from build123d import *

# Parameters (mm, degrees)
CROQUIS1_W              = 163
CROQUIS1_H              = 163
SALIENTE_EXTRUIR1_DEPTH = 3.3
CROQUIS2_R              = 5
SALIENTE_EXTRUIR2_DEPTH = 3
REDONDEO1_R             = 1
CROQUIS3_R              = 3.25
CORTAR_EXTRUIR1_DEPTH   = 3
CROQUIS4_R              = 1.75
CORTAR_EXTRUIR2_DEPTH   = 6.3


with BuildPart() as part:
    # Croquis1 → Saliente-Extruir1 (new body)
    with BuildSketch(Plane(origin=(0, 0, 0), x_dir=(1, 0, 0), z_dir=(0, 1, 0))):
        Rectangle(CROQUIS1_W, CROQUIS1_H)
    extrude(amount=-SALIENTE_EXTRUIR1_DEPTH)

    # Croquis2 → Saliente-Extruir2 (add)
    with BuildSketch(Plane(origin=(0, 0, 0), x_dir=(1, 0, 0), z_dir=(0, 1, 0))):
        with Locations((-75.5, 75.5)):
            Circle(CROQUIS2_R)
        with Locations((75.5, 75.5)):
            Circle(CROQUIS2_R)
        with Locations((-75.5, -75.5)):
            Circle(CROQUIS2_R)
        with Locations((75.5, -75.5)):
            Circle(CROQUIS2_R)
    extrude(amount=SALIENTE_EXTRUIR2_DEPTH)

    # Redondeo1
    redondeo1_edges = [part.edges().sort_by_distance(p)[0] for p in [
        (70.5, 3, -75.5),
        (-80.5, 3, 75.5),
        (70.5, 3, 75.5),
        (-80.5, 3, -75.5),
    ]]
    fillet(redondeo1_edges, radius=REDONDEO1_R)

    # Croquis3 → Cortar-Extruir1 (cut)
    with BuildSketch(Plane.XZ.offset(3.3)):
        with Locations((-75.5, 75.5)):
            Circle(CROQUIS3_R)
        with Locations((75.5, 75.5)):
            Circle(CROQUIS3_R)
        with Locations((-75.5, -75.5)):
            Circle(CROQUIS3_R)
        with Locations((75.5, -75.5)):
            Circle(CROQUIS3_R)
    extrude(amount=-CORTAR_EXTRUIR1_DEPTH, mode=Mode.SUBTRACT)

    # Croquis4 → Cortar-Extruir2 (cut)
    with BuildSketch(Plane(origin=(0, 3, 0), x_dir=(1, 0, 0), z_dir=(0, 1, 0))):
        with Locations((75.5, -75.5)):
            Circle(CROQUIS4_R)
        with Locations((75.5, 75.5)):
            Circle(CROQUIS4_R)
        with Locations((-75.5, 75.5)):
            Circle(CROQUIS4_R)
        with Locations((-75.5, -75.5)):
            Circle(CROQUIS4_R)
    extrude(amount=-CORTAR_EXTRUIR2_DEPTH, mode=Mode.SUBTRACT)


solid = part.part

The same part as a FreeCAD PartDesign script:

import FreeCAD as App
import Part
import Sketcher


def edges_at(feature, points):
    """Names of the edges that pass closest to the given points."""
    edges = feature.Shape.Edges
    near = lambda p: min(range(len(edges)), key=lambda i: edges[i].distToShape(Part.Vertex(*p))[0])
    return sorted({f"Edge{near(p) + 1}" for p in points})


def add_polygon(sketch, points):
    """Adds a closed chain of lines whose ends are joined by coincident constraints."""
    first, n = sketch.GeometryCount, len(points)
    for a, b in zip(points, points[1:] + points[:1]):
        sketch.addGeometry(Part.LineSegment(App.Vector(*a, 0), App.Vector(*b, 0)), False)
    for i in range(n):
        sketch.addConstraint(Sketcher.Constraint("Coincident", first + i, 2, first + (i + 1) % n, 1))

doc = App.newDocument("Part")
body = doc.addObject("PartDesign::Body", "Body")

sketch1 = doc.addObject("Sketcher::SketchObject", "Sketch")
body.addObject(sketch1)
sketch1.AttachmentSupport = (doc.XZ_Plane, [""])
sketch1.MapMode = "FlatFace"
add_polygon(sketch1, [(-82, -82), (-82, 82), (82, 82), (82, -82)])
sketch1.addConstraint([
    Sketcher.Constraint("Vertical", 0),
    Sketcher.Constraint("Horizontal", 1),
    Sketcher.Constraint("Vertical", 2),
    Sketcher.Constraint("Horizontal", 3),
    Sketcher.Constraint("Symmetric", 0, 2, 2, 2, -1, 1),
    Sketcher.Constraint("Equal", 3, 0),
    Sketcher.Constraint("DistanceX", 1, 1, 1, 2, 163.0),
])
pad1 = doc.addObject("PartDesign::Pad", "Pad")
body.addObject(pad1)
pad1.Profile = sketch1
pad1.Length = 3.3

sketch2 = doc.addObject("Sketcher::SketchObject", "Sketch001")
body.addObject(sketch2)
sketch2.AttachmentSupport = (doc.XZ_Plane, [""])
sketch2.MapMode = "FlatFace"
sketch2.addGeometry([
    Part.Circle(App.Vector(-76, -76, 0), App.Vector(0, 0, 1), 5),
    Part.Circle(App.Vector(76, -76, 0), App.Vector(0, 0, 1), 5),
    Part.Circle(App.Vector(-76, 76, 0), App.Vector(0, 0, 1), 5),
    Part.Circle(App.Vector(76, 76, 0), App.Vector(0, 0, 1), 5),
], False)
sketch2.addConstraint([
    Sketcher.Constraint("Equal", 0, 1),
    Sketcher.Constraint("Equal", 1, 2),
    Sketcher.Constraint("Equal", 2, 3),
    Sketcher.Constraint("Symmetric", 1, 3, 2, 3, -1, 1),
    Sketcher.Constraint("Symmetric", 0, 3, 3, 3, -1, 1),
    Sketcher.Constraint("Symmetric", 0, 3, 1, 3, -2),
    Sketcher.Constraint("Diameter", 0, 10.0),
    Sketcher.Constraint("DistanceX", 0, 3, 1, 3, 151.0),
    Sketcher.Constraint("DistanceY", 0, 3, 2, 3, 151.0),
])
pad2 = doc.addObject("PartDesign::Pad", "Pad001")
body.addObject(pad2)
pad2.Profile = sketch2
pad2.Length = 3
pad2.Reversed = True
doc.recompute()

fillet = doc.addObject("PartDesign::Fillet", "Fillet")
body.addObject(fillet)
fillet.Base = (pad2, edges_at(pad2, [
    (70.5, 3, -75.5),
    (-80.5, 3, 75.5),
    (70.5, 3, 75.5),
    (-80.5, 3, -75.5),
]))
fillet.Radius = 1

sketch3 = doc.addObject("Sketcher::SketchObject", "Sketch002")
body.addObject(sketch3)
sketch3.AttachmentSupport = (doc.XZ_Plane, [""])
sketch3.MapMode = "FlatFace"
sketch3.AttachmentOffset = App.Placement(App.Vector(0, 0, 3.3), App.Rotation())
sketch3.addGeometry([
    Part.Circle(App.Vector(-75.5, 75.5, 0), App.Vector(0, 0, 1), 3.2),
    Part.Circle(App.Vector(75.5, 75.5, 0), App.Vector(0, 0, 1), 3.2),
    Part.Circle(App.Vector(-75.5, -75.5, 0), App.Vector(0, 0, 1), 3.2),
    Part.Circle(App.Vector(75.5, -75.5, 0), App.Vector(0, 0, 1), 3.2),
], False)
sketch3.addConstraint([
    Sketcher.Constraint("Equal", 0, 1),
    Sketcher.Constraint("Equal", 1, 2),
    Sketcher.Constraint("Equal", 2, 3),
    Sketcher.Constraint("Symmetric", 1, 3, 2, 3, -1, 1),
    Sketcher.Constraint("Symmetric", 0, 3, 3, 3, -1, 1),
    Sketcher.Constraint("Symmetric", 0, 3, 1, 3, -2),
    Sketcher.Constraint("Diameter", 0, 6.5),
    Sketcher.Constraint("DistanceX", 0, 3, 1, 3, 151.0),
    Sketcher.Constraint("DistanceY", 2, 3, 0, 3, 151.0),
])
pocket1 = doc.addObject("PartDesign::Pocket", "Pocket")
body.addObject(pocket1)
pocket1.Profile = sketch3
pocket1.Length = 3

sketch4 = doc.addObject("Sketcher::SketchObject", "Sketch003")
body.addObject(sketch4)
sketch4.AttachmentSupport = (doc.XZ_Plane, [""])
sketch4.MapMode = "FlatFace"
sketch4.AttachmentOffset = App.Placement(App.Vector(0, 0, -3), App.Rotation())
sketch4.addGeometry([
    Part.Circle(App.Vector(75.5, 75.5, 0), App.Vector(0, 0, 1), 1.8),
    Part.Circle(App.Vector(75.5, -75.5, 0), App.Vector(0, 0, 1), 1.8),
    Part.Circle(App.Vector(-75.5, -75.5, 0), App.Vector(0, 0, 1), 1.8),
    Part.Circle(App.Vector(-75.5, 75.5, 0), App.Vector(0, 0, 1), 1.8),
], False)
sketch4.addConstraint([
    Sketcher.Constraint("Equal", 0, 1),
    Sketcher.Constraint("Equal", 1, 2),
    Sketcher.Constraint("Equal", 2, 3),
    Sketcher.Constraint("Symmetric", 0, 3, 2, 3, -1, 1),
    Sketcher.Constraint("Symmetric", 1, 3, 3, 3, -1, 1),
    Sketcher.Constraint("Symmetric", 1, 3, 2, 3, -2),
    Sketcher.Constraint("Diameter", 0, 3.5),
    Sketcher.Constraint("DistanceY", 1, 3, 0, 3, 151.0),
    Sketcher.Constraint("DistanceX", 2, 3, 1, 3, 151.0),
])
pocket2 = doc.addObject("PartDesign::Pocket", "Pocket001")
body.addObject(pocket2)
pocket2.Profile = sketch4
pocket2.Length = 6.3
pocket2.Reversed = True

doc.recompute()
